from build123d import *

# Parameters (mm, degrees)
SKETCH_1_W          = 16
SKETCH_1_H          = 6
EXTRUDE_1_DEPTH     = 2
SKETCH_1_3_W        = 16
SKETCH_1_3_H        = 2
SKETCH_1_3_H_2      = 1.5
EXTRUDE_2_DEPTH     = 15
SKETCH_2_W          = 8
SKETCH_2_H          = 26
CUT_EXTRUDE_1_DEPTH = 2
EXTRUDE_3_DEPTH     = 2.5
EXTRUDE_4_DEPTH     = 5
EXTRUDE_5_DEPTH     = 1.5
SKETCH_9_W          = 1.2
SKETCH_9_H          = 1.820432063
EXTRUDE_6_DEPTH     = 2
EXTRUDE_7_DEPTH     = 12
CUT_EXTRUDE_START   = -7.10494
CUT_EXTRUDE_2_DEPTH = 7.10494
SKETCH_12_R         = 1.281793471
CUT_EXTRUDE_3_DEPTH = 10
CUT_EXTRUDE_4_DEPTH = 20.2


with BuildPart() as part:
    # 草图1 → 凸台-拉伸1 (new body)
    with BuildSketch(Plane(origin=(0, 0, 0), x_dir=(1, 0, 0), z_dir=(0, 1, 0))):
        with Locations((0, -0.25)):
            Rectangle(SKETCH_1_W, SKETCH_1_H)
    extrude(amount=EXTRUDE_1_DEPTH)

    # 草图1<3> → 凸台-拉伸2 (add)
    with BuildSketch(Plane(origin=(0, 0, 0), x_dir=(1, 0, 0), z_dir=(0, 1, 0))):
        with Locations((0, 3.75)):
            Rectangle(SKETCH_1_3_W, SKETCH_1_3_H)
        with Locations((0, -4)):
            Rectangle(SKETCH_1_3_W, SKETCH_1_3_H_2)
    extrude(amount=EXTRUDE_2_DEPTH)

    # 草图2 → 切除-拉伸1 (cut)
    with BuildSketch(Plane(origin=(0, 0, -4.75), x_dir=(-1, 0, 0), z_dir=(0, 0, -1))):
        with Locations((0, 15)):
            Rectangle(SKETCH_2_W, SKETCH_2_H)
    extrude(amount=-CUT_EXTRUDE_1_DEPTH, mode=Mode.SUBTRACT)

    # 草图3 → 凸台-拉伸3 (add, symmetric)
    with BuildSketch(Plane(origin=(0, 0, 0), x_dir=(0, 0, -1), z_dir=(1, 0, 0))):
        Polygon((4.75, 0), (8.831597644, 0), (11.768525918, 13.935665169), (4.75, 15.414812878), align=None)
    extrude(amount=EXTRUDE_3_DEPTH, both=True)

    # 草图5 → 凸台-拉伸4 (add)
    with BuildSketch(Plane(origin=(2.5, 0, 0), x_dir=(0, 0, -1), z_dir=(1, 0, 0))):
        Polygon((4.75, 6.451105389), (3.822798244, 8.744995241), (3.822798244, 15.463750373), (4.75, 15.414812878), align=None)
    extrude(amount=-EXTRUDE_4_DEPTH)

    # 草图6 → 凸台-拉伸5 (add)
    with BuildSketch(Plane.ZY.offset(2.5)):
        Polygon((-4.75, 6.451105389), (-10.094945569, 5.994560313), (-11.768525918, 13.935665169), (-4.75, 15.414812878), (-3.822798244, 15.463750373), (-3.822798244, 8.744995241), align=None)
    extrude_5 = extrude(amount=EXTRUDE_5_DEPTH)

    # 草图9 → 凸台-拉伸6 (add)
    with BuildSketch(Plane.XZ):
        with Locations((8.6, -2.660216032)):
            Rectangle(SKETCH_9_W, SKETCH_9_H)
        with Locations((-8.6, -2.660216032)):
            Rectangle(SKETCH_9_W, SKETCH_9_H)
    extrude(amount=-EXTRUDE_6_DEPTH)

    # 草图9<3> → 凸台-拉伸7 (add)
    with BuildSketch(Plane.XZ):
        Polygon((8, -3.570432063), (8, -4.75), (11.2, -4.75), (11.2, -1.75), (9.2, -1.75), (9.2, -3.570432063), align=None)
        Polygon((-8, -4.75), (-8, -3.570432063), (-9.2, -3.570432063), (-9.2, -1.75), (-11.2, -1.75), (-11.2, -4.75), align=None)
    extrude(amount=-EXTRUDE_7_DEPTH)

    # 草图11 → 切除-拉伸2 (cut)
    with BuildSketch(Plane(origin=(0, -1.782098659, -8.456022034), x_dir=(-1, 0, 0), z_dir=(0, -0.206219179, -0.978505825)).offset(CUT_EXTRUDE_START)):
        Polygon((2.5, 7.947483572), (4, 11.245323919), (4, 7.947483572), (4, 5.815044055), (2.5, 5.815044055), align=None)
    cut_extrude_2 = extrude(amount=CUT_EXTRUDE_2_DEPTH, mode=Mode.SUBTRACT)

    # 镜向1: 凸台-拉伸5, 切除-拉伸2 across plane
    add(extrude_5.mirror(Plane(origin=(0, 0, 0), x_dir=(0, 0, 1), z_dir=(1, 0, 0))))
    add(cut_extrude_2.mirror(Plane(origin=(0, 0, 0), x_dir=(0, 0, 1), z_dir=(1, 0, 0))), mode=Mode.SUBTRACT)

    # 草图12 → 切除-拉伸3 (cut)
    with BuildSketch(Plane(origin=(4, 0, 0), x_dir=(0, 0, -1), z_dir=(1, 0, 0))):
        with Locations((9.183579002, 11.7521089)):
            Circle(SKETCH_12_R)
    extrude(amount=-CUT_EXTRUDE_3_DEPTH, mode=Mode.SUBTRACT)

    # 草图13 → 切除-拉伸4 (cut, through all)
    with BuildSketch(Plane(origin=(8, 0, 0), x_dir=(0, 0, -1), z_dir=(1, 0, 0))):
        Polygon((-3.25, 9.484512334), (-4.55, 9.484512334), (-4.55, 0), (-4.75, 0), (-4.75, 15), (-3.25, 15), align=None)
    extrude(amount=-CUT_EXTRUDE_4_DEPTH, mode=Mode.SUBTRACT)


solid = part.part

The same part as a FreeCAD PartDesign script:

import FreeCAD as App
import Part
import Sketcher

doc = App.newDocument("Part")
params = doc.addObject("Spreadsheet::Sheet", "Params")
for row, (alias, value) in enumerate([
    ("sketch1_width", "16 mm"),
    ("sketch1_height", "6 mm"),
    ("pad1_length", "2 mm"),
    ("sketch2_width", "16 mm"),
    ("sketch2_height", "2 mm"),
    ("sketch2_height2", "1.5 mm"),
    ("pad2_length", "15 mm"),
    ("sketch3_width", "8 mm"),
    ("sketch3_height", "26 mm"),
    ("pocket1_length", "2 mm"),
    ("pad3_length", "5 mm"),
    ("pad4_length", "5 mm"),
    ("pad5_length", "1.5 mm"),
    ("sketch7_width", "1.2 mm"),
    ("pad6_length", "2 mm"),
    ("sketch8_width", "2 mm"),
    ("sketch8_height", "3 mm"),
    ("sketch8_width2", "3.2 mm"),
    ("pad7_length", "12 mm"),
    ("sketch9_width", "1.5 mm"),
    ("pocket2_length", "7.10494 mm"),
    ("pocket3_length", "10 mm"),
    ("sketch11_width", "15 mm"),
    ("sketch11_height", "1.3 mm"),
    ("sketch11_height2", "1.5 mm"),
], start=1):
    params.set(f"A{row}", alias)
    params.set(f"B{row}", "=" + value)
    params.setAlias(f"B{row}", alias)

body = doc.addObject("PartDesign::Body", "Body")

sketch1 = doc.addObject("Sketcher::SketchObject", "Sketch")
body.addObject(sketch1)
sketch1.AttachmentSupport = (doc.XZ_Plane, [""])
sketch1.MapMode = "FlatFace"
sketch1.addGeometry([
    Part.LineSegment(App.Vector(-8, -3, 0), App.Vector(-8, 3, 0)),
    Part.LineSegment(App.Vector(-8, 3, 0), App.Vector(8, 3, 0)),
    Part.LineSegment(App.Vector(8, 3, 0), App.Vector(8, -3, 0)),
    Part.LineSegment(App.Vector(8, -3, 0), App.Vector(-8, -3, 0)),
], False)
sketch1.addConstraint([
    Sketcher.Constraint("Coincident", 0, 2, 1, 1),
    Sketcher.Constraint("Coincident", 1, 2, 2, 1),
    Sketcher.Constraint("Coincident", 2, 2, 3, 1),
    Sketcher.Constraint("Coincident", 3, 2, 0, 1),
    Sketcher.Constraint("Vertical", 0),
    Sketcher.Constraint("Horizontal", 1),
    Sketcher.Constraint("Vertical", 2),
    Sketcher.Constraint("Horizontal", 3),
    Sketcher.Constraint("DistanceX", 1, 1, 1, 2, 16.0),
    Sketcher.Constraint("DistanceY", 0, 1, 0, 2, 6.0),
    Sketcher.Constraint("DistanceX", 0, 2, -1, 1, 8.0),
    Sketcher.Constraint("DistanceY", -1, 1, 0, 2, 3.25),
])
sketch1.setExpression("Constraints[8]", "Params.sketch1_width")
sketch1.setExpression("Constraints[9]", "Params.sketch1_height")
pad1 = doc.addObject("PartDesign::Pad", "Pad")
body.addObject(pad1)
pad1.Profile = sketch1
pad1.setExpression("Length", "Params.pad1_length")
pad1.Reversed = True

sketch2 = doc.addObject("Sketcher::SketchObject", "Sketch001")
body.addObject(sketch2)
sketch2.AttachmentSupport = (doc.XZ_Plane, [""])
sketch2.MapMode = "FlatFace"
sketch2.addGeometry([
    Part.LineSegment(App.Vector(-8, -4.8, 0), App.Vector(-8, -2.8, 0)),
    Part.LineSegment(App.Vector(-8, -2.8, 0), App.Vector(8, -2.8, 0)),
    Part.LineSegment(App.Vector(8, -2.8, 0), App.Vector(8, -4.8, 0)),
    Part.LineSegment(App.Vector(8, -4.8, 0), App.Vector(-8, -4.8, 0)),
    Part.LineSegment(App.Vector(-8, 3.2, 0), App.Vector(-8, 4.8, 0)),
    Part.LineSegment(App.Vector(-8, 4.8, 0), App.Vector(8, 4.8, 0)),
    Part.LineSegment(App.Vector(8, 4.8, 0), App.Vector(8, 3.2, 0)),
    Part.LineSegment(App.Vector(8, 3.2, 0), App.Vector(-8, 3.2, 0)),
], False)
sketch2.addConstraint([
    Sketcher.Constraint("Coincident", 0, 2, 1, 1),
    Sketcher.Constraint("Coincident", 1, 2, 2, 1),
    Sketcher.Constraint("Coincident", 2, 2, 3, 1),
    Sketcher.Constraint("Coincident", 3, 2, 0, 1),
    Sketcher.Constraint("Coincident", 4, 2, 5, 1),
    Sketcher.Constraint("Coincident", 5, 2, 6, 1),
    Sketcher.Constraint("Coincident", 6, 2, 7, 1),
    Sketcher.Constraint("Coincident", 7, 2, 4, 1),
    Sketcher.Constraint("Vertical", 0),
    Sketcher.Constraint("Horizontal", 1),
    Sketcher.Constraint("Vertical", 2),
    Sketcher.Constraint("Horizontal", 3),
    Sketcher.Constraint("Vertical", 4),
    Sketcher.Constraint("Horizontal", 5),
    Sketcher.Constraint("Vertical", 6),
    Sketcher.Constraint("Horizontal", 7),
    Sketcher.Constraint("Symmetric", 2, 2, 4, 2, -1, 1),
    Sketcher.Constraint("Vertical", 3, 2, 4, 2),
    Sketcher.Constraint("Vertical", 2, 2, 5, 2),
    Sketcher.Constraint("DistanceX", 1, 1, 1, 2, 16.0),
    Sketcher.Constraint("DistanceY", 0, 1, 0, 2, 2.0),
    Sketcher.Constraint("DistanceY", 4, 1, 4, 2, 1.5),
    Sketcher.Constraint("DistanceY", 1, 2, 6, 2, 6.0),
])
sketch2.setExpression("Constraints[19]", "Params.sketch2_width")
sketch2.setExpression("Constraints[20]", "Params.sketch2_height")
sketch2.setExpression("Constraints[21]", "Params.sketch2_height2")
pad2 = doc.addObject("PartDesign::Pad", "Pad001")
body.addObject(pad2)
pad2.Profile = sketch2
pad2.setExpression("Length", "Params.pad2_length")
pad2.Reversed = True

sketch3 = doc.addObject("Sketcher::SketchObject", "Sketch002")
body.addObject(sketch3)
sketch3.AttachmentSupport = (doc.XY_Plane, [""])
sketch3.MapMode = "FlatFace"
sketch3.AttachmentOffset = App.Placement(App.Vector(0, 0, -4.75), App.Rotation())
sketch3.addGeometry([
    Part.LineSegment(App.Vector(4, 28, 0), App.Vector(4, 2, 0)),
    Part.LineSegment(App.Vector(4, 2, 0), App.Vector(-4, 2, 0)),
    Part.LineSegment(App.Vector(-4, 2, 0), App.Vector(-4, 28, 0)),
    Part.LineSegment(App.Vector(-4, 28, 0), App.Vector(4, 28, 0)),
], False)
sketch3.addConstraint([
    Sketcher.Constraint("Coincident", 0, 2, 1, 1),
    Sketcher.Constraint("Coincident", 1, 2, 2, 1),
    Sketcher.Constraint("Coincident", 2, 2, 3, 1),
    Sketcher.Constraint("Coincident", 3, 2, 0, 1),
    Sketcher.Constraint("Vertical", 0),
    Sketcher.Constraint("Horizontal", 1),
    Sketcher.Constraint("Vertical", 2),
    Sketcher.Constraint("Horizontal", 3),
    Sketcher.Constraint("DistanceX", 1, 2, 1, 1, 8.0),
    Sketcher.Constraint("DistanceY", 0, 2, 0, 1, 26.0),
    Sketcher.Constraint("DistanceX", -1, 1, 0, 2, 4.0),
    Sketcher.Constraint("DistanceY", -1, 1, 0, 2, 2.0),
])
sketch3.setExpression("Constraints[8]", "Params.sketch3_width")
sketch3.setExpression("Constraints[9]", "Params.sketch3_height")
pocket1 = doc.addObject("PartDesign::Pocket", "Pocket")
body.addObject(pocket1)
pocket1.Profile = sketch3
pocket1.setExpression("Length", "Params.pocket1_length")
pocket1.Reversed = True

sketch4 = doc.addObject("Sketcher::SketchObject", "Sketch003")
body.addObject(sketch4)
sketch4.AttachmentSupport = (doc.YZ_Plane, [""])
sketch4.MapMode = "FlatFace"
sketch4.addGeometry([
    Part.LineSegment(App.Vector(0, -4.8, 0), App.Vector(0, -8.8, 0)),
    Part.LineSegment(App.Vector(0, -8.8, 0), App.Vector(13.9, -11.8, 0)),
    Part.LineSegment(App.Vector(13.9, -11.8, 0), App.Vector(15.4, -4.8, 0)),
    Part.LineSegment(App.Vector(15.4, -4.8, 0), App.Vector(0, -4.8, 0)),
], False)
sketch4.addConstraint([
    Sketcher.Constraint("Coincident", 0, 2, 1, 1),
    Sketcher.Constraint("Coincident", 1, 2, 2, 1),
    Sketcher.Constraint("Coincident", 2, 2, 3, 1),
    Sketcher.Constraint("Coincident", 3, 2, 0, 1),
    Sketcher.Constraint("Vertical", 0),
    Sketcher.Constraint("Horizontal", 3),
    Sketcher.Constraint("PointOnObject", 0, 2, -2),
    Sketcher.Constraint("Perpendicular", 1, 2),
    Sketcher.Constraint("DistanceY", 2, 2, -1, 1, 4.75),
    Sketcher.Constraint("Distance", 1, 14.24178),
    Sketcher.Constraint("DistanceX", 3, 2, 3, 1, 15.414813),
    Sketcher.Constraint("DistanceY", 0, 2, 0, 1, 4.081598),
])
pad3 = doc.addObject("PartDesign::Pad", "Pad002")
body.addObject(pad3)
pad3.Profile = sketch4
pad3.setExpression("Length", "Params.pad3_length")
pad3.Midplane = True

sketch5 = doc.addObject("Sketcher::SketchObject", "Sketch004")
body.addObject(sketch5)
sketch5.AttachmentSupport = (doc.YZ_Plane, [""])
sketch5.MapMode = "FlatFace"
sketch5.AttachmentOffset = App.Placement(App.Vector(0, 0, 2.5), App.Rotation())
sketch5.addGeometry([
    Part.LineSegment(App.Vector(8.7, -3.8, 0), App.Vector(6.5, -4.8, 0)),
    Part.LineSegment(App.Vector(6.5, -4.8, 0), App.Vector(15.4, -4.8, 0)),
    Part.LineSegment(App.Vector(15.4, -4.8, 0), App.Vector(15.5, -3.8, 0)),
    Part.LineSegment(App.Vector(15.5, -3.8, 0), App.Vector(8.7, -3.8, 0)),
], False)
sketch5.addConstraint([
    Sketcher.Constraint("Coincident", 0, 2, 1, 1),
    Sketcher.Constraint("Coincident", 1, 2, 2, 1),
    Sketcher.Constraint("Coincident", 2, 2, 3, 1),
    Sketcher.Constraint("Coincident", 3, 2, 0, 1),
    Sketcher.Constraint("Horizontal", 1),
    Sketcher.Constraint("Horizontal", 3),
    Sketcher.Constraint("DistanceY", 0, 2, -1, 1, 4.75),
    Sketcher.Constraint("DistanceY", 2, 2, -1, 1, 3.822798),
    Sketcher.Constraint("DistanceX", 1, 1, 1, 2, 8.963707),
    Sketcher.Constraint("DistanceX", 3, 2, 3, 1, 6.718755),
    Sketcher.Constraint("DistanceX", -1, 1, 2, 2, 15.46375),
    Sketcher.Constraint("DistanceX", 0, 2, 3, 2, 2.29389),
])
pad4 = doc.addObject("PartDesign::Pad", "Pad003")
body.addObject(pad4)
pad4.Profile = sketch5
pad4.setExpression("Length", "Params.pad4_length")
pad4.Reversed = True

sketch6 = doc.addObject("Sketcher::SketchObject", "Sketch005")
body.addObject(sketch6)
sketch6.AttachmentSupport = (doc.YZ_Plane, [""])
sketch6.MapMode = "FlatFace"
sketch6.AttachmentOffset = App.Placement(App.Vector(0, 0, -2.5), App.Rotation())
sketch6.addGeometry([
    Part.LineSegment(App.Vector(6, -10.1, 0), App.Vector(6.5, -4.8, 0)),
    Part.LineSegment(App.Vector(6.5, -4.8, 0), App.Vector(8.7, -3.8, 0)),
    Part.LineSegment(App.Vector(8.7, -3.8, 0), App.Vector(15.5, -3.8, 0)),
    Part.LineSegment(App.Vector(15.5, -3.8, 0), App.Vector(15.4, -4.8, 0)),
    Part.LineSegment(App.Vector(15.4, -4.8, 0), App.Vector(13.9, -11.8, 0)),
    Part.LineSegment(App.Vector(13.9, -11.8, 0), App.Vector(6, -10.1, 0)),
], False)
sketch6.addConstraint([
    Sketcher.Constraint("Coincident", 0, 2, 1, 1),
    Sketcher.Constraint("Coincident", 1, 2, 2, 1),
    Sketcher.Constraint("Coincident", 2, 2, 3, 1),
    Sketcher.Constraint("Coincident", 3, 2, 4, 1),
    Sketcher.Constraint("Coincident", 4, 2, 5, 1),
    Sketcher.Constraint("Coincident", 5, 2, 0, 1),
    Sketcher.Constraint("Horizontal", 2),
    Sketcher.Constraint("Perpendicular", 4, 5),
    Sketcher.Constraint("Horizontal", 0, 2, 3, 2),
    Sketcher.Constraint("DistanceY", 0, 2, -1, 1, 4.75),
    Sketcher.Constraint("DistanceY", 1, 2, -1, 1, 3.822798),
    Sketcher.Constraint("Distance", 0, 5.364408),
    Sketcher.Constraint("Distance", 5, 8.115542),
    Sketcher.Constraint("DistanceX", 2, 1, 2, 2, 6.718755),
    Sketcher.Constraint("DistanceX", -1, 1, 2, 2, 15.46375),
    Sketcher.Constraint("DistanceX", -1, 1, 5, 2, 5.99456),
    Sketcher.Constraint("DistanceX", 0, 2, 1, 2, 2.29389),
    Sketcher.Constraint("DistanceX", 1, 2, 4, 2, 5.19067),
])
pad5 = doc.addObject("PartDesign::Pad", "Pad004")
body.addObject(pad5)
pad5.Profile = sketch6
pad5.setExpression("Length", "Params.pad5_length")
pad5.Reversed = True

sketch7 = doc.addObject("Sketcher::SketchObject", "Sketch006")
body.addObject(sketch7)
sketch7.AttachmentSupport = (doc.XZ_Plane, [""])
sketch7.MapMode = "FlatFace"
sketch7.addGeometry([
    Part.LineSegment(App.Vector(8, -1.8, 0), App.Vector(8, -3.6, 0)),
    Part.LineSegment(App.Vector(8, -3.6, 0), App.Vector(9.2, -3.6, 0)),
    Part.LineSegment(App.Vector(9.2, -3.6, 0), App.Vector(9.2, -1.8, 0)),
    Part.LineSegment(App.Vector(9.2, -1.8, 0), App.Vector(8, -1.8, 0)),
    Part.LineSegment(App.Vector(-9.2, -1.8, 0), App.Vector(-9.2, -3.6, 0)),
    Part.LineSegment(App.Vector(-9.2, -3.6, 0), App.Vector(-8, -3.6, 0)),
    Part.LineSegment(App.Vector(-8, -3.6, 0), App.Vector(-8, -1.8, 0)),
    Part.LineSegment(App.Vector(-8, -1.8, 0), App.Vector(-9.2, -1.8, 0)),
], False)
sketch7.addConstraint([
    Sketcher.Constraint("Coincident", 0, 2, 1, 1),
    Sketcher.Constraint("Coincident", 1, 2, 2, 1),
    Sketcher.Constraint("Coincident", 2, 2, 3, 1),
    Sketcher.Constraint("Coincident", 3, 2, 0, 1),
    Sketcher.Constraint("Coincident", 4, 2, 5, 1),
    Sketcher.Constraint("Coincident", 5, 2, 6, 1),
    Sketcher.Constraint("Coincident", 6, 2, 7, 1),
    Sketcher.Constraint("Coincident", 7, 2, 4, 1),
    Sketcher.Constraint("Vertical", 0),
    Sketcher.Constraint("Horizontal", 1),
    Sketcher.Constraint("Vertical", 2),
    Sketcher.Constraint("Horizontal", 3),
    Sketcher.Constraint("Vertical", 4),
    Sketcher.Constraint("Horizontal", 5),
    Sketcher.Constraint("Vertical", 6),
    Sketcher.Constraint("Horizontal", 7),
    Sketcher.Constraint("Symmetric", 1, 2, 4, 2, -2),
    Sketcher.Constraint("Symmetric", 3, 2, 6, 2, -2),
    Sketcher.Constraint("DistanceX", 1, 1, 1, 2, 1.2),
    Sketcher.Constraint("DistanceX", -1, 1, 0, 2, 8.0),
    Sketcher.Constraint("DistanceY", 2, 2, -1, 1, 1.75),
    Sketcher.Constraint("DistanceY", 0, 2, 0, 1, 1.820432),
])
sketch7.setExpression("Constraints[18]", "Params.sketch7_width")
pad6 = doc.addObject("PartDesign::Pad", "Pad005")
body.addObject(pad6)
pad6.Profile = sketch7
pad6.setExpression("Length", "Params.pad6_length")
pad6.Reversed = True

sketch8 = doc.addObject("Sketcher::SketchObject", "Sketch007")
body.addObject(sketch8)
sketch8.AttachmentSupport = (doc.XZ_Plane, [""])
sketch8.MapMode = "FlatFace"
sketch8.addGeometry([
    Part.LineSegment(App.Vector(8, -3.6, 0), App.Vector(8, -4.8, 0)),
    Part.LineSegment(App.Vector(8, -4.8, 0), App.Vector(11.2, -4.8, 0)),
    Part.LineSegment(App.Vector(11.2, -4.8, 0), App.Vector(11.2, -1.8, 0)),
    Part.LineSegment(App.Vector(11.2, -1.8, 0), App.Vector(9.2, -1.8, 0)),
    Part.LineSegment(App.Vector(9.2, -1.8, 0), App.Vector(9.2, -3.6, 0)),
    Part.LineSegment(App.Vector(9.2, -3.6, 0), App.Vector(8, -3.6, 0)),
    Part.LineSegment(App.Vector(-8, -4.8, 0), App.Vector(-8, -3.6, 0)),
    Part.LineSegment(App.Vector(-8, -3.6, 0), App.Vector(-9.2, -3.6, 0)),
    Part.LineSegment(App.Vector(-9.2, -3.6, 0), App.Vector(-9.2, -1.8, 0)),
    Part.LineSegment(App.Vector(-9.2, -1.8, 0), App.Vector(-11.2, -1.8, 0)),
    Part.LineSegment(App.Vector(-11.2, -1.8, 0), App.Vector(-11.2, -4.8, 0)),
    Part.LineSegment(App.Vector(-11.2, -4.8, 0), App.Vector(-8, -4.8, 0)),
], False)
sketch8.addConstraint([
    Sketcher.Constraint("Coincident", 0, 2, 1, 1),
    Sketcher.Constraint("Coincident", 1, 2, 2, 1),
    Sketcher.Constraint("Coincident", 2, 2, 3, 1),
    Sketcher.Constraint("Coincident", 3, 2, 4, 1),
    Sketcher.Constraint("Coincident", 4, 2, 5, 1),
    Sketcher.Constraint("Coincident", 5, 2, 0, 1),
    Sketcher.Constraint("Coincident", 6, 2, 7, 1),
    Sketcher.Constraint("Coincident", 7, 2, 8, 1),
    Sketcher.Constraint("Coincident", 8, 2, 9, 1),
    Sketcher.Constraint("Coincident", 9, 2, 10, 1),
    Sketcher.Constraint("Coincident", 10, 2, 11, 1),
    Sketcher.Constraint("Coincident", 11, 2, 6, 1),
    Sketcher.Constraint("Vertical", 0),
    Sketcher.Constraint("Horizontal", 1),
    Sketcher.Constraint("Vertical", 2),
    Sketcher.Constraint("Horizontal", 3),
    Sketcher.Constraint("Vertical", 4),
    Sketcher.Constraint("Horizontal", 5),
    Sketcher.Constraint("Vertical", 6),
    Sketcher.Constraint("Horizontal", 7),
    Sketcher.Constraint("Vertical", 8),
    Sketcher.Constraint("Horizontal", 9),
    Sketcher.Constraint("Vertical", 10),
    Sketcher.Constraint("Horizontal", 11),
    Sketcher.Constraint("Symmetric", 5, 2, 6, 2, -2),
    Sketcher.Constraint("Symmetric", 3, 2, 8, 2, -2),
    Sketcher.Constraint("Symmetric", 1, 2, 10, 2, -2),
    Sketcher.Constraint("DistanceX", 3, 2, 3, 1, 2.0),
    Sketcher.Constraint("DistanceY", 2, 1, 2, 2, 3.0),
    Sketcher.Constraint("DistanceX", 1, 1, 1, 2, 3.2),
    Sketcher.Constraint("DistanceX", -1, 1, 0, 2, 8.0),
    Sketcher.Constraint("DistanceY", 0, 2, -1, 1, 4.75),
    Sketcher.Constraint("DistanceY", 0, 2, 0, 1, 1.179568),
])
sketch8.setExpression("Constraints[27]", "Params.sketch8_width")
sketch8.setExpression("Constraints[28]", "Params.sketch8_height")
sketch8.setExpression("Constraints[29]", "Params.sketch8_width2")
pad7 = doc.addObject("PartDesign::Pad", "Pad006")
body.addObject(pad7)
pad7.Profile = sketch8
pad7.setExpression("Length", "Params.pad7_length")
pad7.Reversed = True

sketch9 = doc.addObject("Sketcher::SketchObject", "Sketch008")
body.addObject(sketch9)
sketch9.Placement = App.Placement(App.Vector(0, -0.316924, -1.503797), App.Rotation(App.Vector(-1, 0, 0), App.Vector(0, 0.978505825, -0.206219179), App.Vector(0, -0.206219179, -0.978505825), "ZXY"))
sketch9.addGeometry([
    Part.LineSegment(App.Vector(4, 11.2, 0), App.Vector(2.5, 7.9, 0)),
    Part.LineSegment(App.Vector(2.5, 7.9, 0), App.Vector(2.5, 5.8, 0)),
    Part.LineSegment(App.Vector(2.5, 5.8, 0), App.Vector(4, 5.8, 0)),
    Part.LineSegment(App.Vector(4, 5.8, 0), App.Vector(4, 11.2, 0)),
], False)
sketch9.addConstraint([
    Sketcher.Constraint("Coincident", 0, 2, 1, 1),
    Sketcher.Constraint("Coincident", 1, 2, 2, 1),
    Sketcher.Constraint("Coincident", 2, 2, 3, 1),
    Sketcher.Constraint("Coincident", 3, 2, 0, 1),
    Sketcher.Constraint("Vertical", 1),
    Sketcher.Constraint("Horizontal", 2),
    Sketcher.Constraint("Vertical", 3),
    Sketcher.Constraint("DistanceX", 2, 1, 2, 2, 1.5),
    Sketcher.Constraint("DistanceX", -1, 1, 2, 2, 4.0),
    Sketcher.Constraint("DistanceY", 1, 2, 1, 1, 2.13244),
    Sketcher.Constraint("DistanceY", 3, 1, 3, 2, 5.43028),
    Sketcher.Constraint("DistanceY", -1, 1, 0, 2, 7.947484),
])
sketch9.setExpression("Constraints[7]", "Params.sketch9_width")
pocket2 = doc.addObject("PartDesign::Pocket", "Pocket001")
body.addObject(pocket2)
pocket2.Profile = sketch9
pocket2.setExpression("Length", "Params.pocket2_length")
pocket2.Reversed = True
doc.recompute()

mirrored = doc.addObject("PartDesign::Mirrored", "Mirrored")
body.addObject(mirrored)
mirrored.Originals = [pad5, pocket2]
mirrored.MirrorPlane = (doc.YZ_Plane, [""])
body.Tip = mirrored

sketch10 = doc.addObject("Sketcher::SketchObject", "Sketch009")
body.addObject(sketch10)
sketch10.AttachmentSupport = (doc.YZ_Plane, [""])
sketch10.MapMode = "FlatFace"
sketch10.AttachmentOffset = App.Placement(App.Vector(0, 0, 4), App.Rotation())
sketch10.addGeometry(Part.Circle(App.Vector(11.8, -9.2, 0), App.Vector(0, 0, 1), 1.3), False)
sketch10.addConstraint([
    Sketcher.Constraint("Diameter", 0, 2.563587),
    Sketcher.Constraint("DistanceX", -1, 1, 0, 3, 11.752109),
    Sketcher.Constraint("DistanceY", 0, 3, -1, 1, 9.183579),
])
pocket3 = doc.addObject("PartDesign::Pocket", "Pocket002")
body.addObject(pocket3)
pocket3.Profile = sketch10
pocket3.setExpression("Length", "Params.pocket3_length")

sketch11 = doc.addObject("Sketcher::SketchObject", "Sketch010")
body.addObject(sketch11)
sketch11.AttachmentSupport = (doc.YZ_Plane, [""])
sketch11.MapMode = "FlatFace"
sketch11.AttachmentOffset = App.Placement(App.Vector(0, 0, 8), App.Rotation())
sketch11.addGeometry([
    Part.LineSegment(App.Vector(9.48, 4.55, 0), App.Vector(9.48, 3.25, 0)),
    Part.LineSegment(App.Vector(9.48, 3.25, 0), App.Vector(15, 3.25, 0)),
    Part.LineSegment(App.Vector(15, 3.25, 0), App.Vector(15, 4.75, 0)),
    Part.LineSegment(App.Vector(15, 4.75, 0), App.Vector(0, 4.75, 0)),
    Part.LineSegment(App.Vector(0, 4.75, 0), App.Vector(0, 4.55, 0)),
    Part.LineSegment(App.Vector(0, 4.55, 0), App.Vector(9.48, 4.55, 0)),
], False)
sketch11.addConstraint([
    Sketcher.Constraint("Coincident", 0, 2, 1, 1),
    Sketcher.Constraint("Coincident", 1, 2, 2, 1),
    Sketcher.Constraint("Coincident", 2, 2, 3, 1),
    Sketcher.Constraint("Coincident", 3, 2, 4, 1),
    Sketcher.Constraint("Coincident", 4, 2, 5, 1),
    Sketcher.Constraint("Coincident", 5, 2, 0, 1),
    Sketcher.Constraint("Vertical", 0),
    Sketcher.Constraint("Horizontal", 1),
    Sketcher.Constraint("Vertical", 2),
    Sketcher.Constraint("Horizontal", 3),
    Sketcher.Constraint("Vertical", 4),
    Sketcher.Constraint("Horizontal", 5),
    Sketcher.Constraint("PointOnObject", 3, 2, -2),
    Sketcher.Constraint("DistanceX", 3, 2, 3, 1, 15.0),
    Sketcher.Constraint("DistanceY", 0, 2, 0, 1, 1.3),
    Sketcher.Constraint("DistanceY", 2, 1, 2, 2, 1.5),
    Sketcher.Constraint("DistanceY", -1, 1, 0, 2, 3.25),
    Sketcher.Constraint("DistanceX", 1, 1, 1, 2, 5.515488),
])
sketch11.setExpression("Constraints[13]", "Params.sketch11_width")
sketch11.setExpression("Constraints[14]", "Params.sketch11_height")
sketch11.setExpression("Constraints[15]", "Params.sketch11_height2")
pocket4 = doc.addObject("PartDesign::Pocket", "Pocket003")
body.addObject(pocket4)
pocket4.Profile = sketch11
pocket4.Type = "ThroughAll"

doc.recompute()
